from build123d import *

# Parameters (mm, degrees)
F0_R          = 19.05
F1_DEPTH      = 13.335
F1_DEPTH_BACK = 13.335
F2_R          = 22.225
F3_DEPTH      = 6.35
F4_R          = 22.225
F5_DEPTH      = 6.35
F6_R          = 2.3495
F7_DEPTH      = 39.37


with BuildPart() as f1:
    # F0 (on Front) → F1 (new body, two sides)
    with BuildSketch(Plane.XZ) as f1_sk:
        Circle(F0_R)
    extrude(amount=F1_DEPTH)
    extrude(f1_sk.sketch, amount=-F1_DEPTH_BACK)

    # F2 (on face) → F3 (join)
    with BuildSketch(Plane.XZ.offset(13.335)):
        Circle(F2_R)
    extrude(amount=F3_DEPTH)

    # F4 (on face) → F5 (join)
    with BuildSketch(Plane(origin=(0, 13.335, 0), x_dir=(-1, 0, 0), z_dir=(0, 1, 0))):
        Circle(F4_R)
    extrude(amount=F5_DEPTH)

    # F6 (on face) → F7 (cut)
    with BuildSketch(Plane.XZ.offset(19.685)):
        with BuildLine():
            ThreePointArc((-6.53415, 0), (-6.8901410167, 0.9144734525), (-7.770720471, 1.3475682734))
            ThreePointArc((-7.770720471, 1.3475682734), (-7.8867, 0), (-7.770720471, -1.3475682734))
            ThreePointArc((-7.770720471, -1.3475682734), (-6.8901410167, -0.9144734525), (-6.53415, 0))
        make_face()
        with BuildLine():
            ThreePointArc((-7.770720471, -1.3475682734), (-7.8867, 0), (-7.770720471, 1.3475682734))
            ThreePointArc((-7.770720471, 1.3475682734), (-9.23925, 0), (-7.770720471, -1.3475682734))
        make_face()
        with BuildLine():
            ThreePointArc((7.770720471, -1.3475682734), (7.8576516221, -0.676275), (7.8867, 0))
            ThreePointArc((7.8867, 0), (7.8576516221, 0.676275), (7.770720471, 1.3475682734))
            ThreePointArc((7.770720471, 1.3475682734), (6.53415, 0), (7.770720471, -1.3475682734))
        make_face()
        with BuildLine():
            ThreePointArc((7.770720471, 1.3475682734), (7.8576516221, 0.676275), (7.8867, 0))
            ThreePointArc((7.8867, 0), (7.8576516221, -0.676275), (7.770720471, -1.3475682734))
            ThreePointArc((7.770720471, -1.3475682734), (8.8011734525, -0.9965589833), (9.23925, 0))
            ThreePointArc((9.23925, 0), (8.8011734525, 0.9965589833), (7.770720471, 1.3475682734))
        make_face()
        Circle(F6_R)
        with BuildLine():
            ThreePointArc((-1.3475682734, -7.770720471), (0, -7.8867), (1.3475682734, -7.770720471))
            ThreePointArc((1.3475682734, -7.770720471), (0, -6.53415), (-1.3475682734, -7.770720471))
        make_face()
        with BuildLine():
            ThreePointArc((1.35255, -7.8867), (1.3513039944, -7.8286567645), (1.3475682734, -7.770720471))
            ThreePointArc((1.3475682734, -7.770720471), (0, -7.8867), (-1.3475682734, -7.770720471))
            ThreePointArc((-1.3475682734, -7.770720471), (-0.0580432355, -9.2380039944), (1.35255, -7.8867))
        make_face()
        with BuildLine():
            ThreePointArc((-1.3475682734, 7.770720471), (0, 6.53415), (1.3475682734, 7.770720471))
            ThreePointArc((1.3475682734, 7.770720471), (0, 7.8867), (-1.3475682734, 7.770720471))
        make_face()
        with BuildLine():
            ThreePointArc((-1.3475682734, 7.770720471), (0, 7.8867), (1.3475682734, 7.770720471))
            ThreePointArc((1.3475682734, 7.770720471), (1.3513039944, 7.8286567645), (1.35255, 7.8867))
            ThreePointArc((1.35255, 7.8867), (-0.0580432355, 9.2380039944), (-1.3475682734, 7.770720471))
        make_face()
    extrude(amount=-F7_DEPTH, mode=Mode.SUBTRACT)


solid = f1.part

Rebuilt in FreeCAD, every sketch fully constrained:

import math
import FreeCAD as App
import Part
import Sketcher
from FreeCAD import Vector
Q = App.Units.Quantity

doc = App.newDocument("Part")
body = doc.addObject("PartDesign::Body", "Body")

sketch1 = body.newObject("Sketcher::SketchObject", "Sketch")
sketch1.AttachmentSupport = (doc.getObject("XZ_Plane"), [""])
sketch1.MapMode = "FlatFace"
sketch1.addGeometry(Part.Circle(Vector(0, 0, 0), Vector(0, 0, 1), 19), False)
sketch1.addConstraint(Sketcher.Constraint("Coincident", 0, 3, -1, 1))
sketch1.addConstraint(Sketcher.Constraint("Diameter", 0, Q("1.5 in")))
pad1 = body.newObject("PartDesign::Pad", "Pad")
pad1.Profile = sketch1
pad1.Type = "TwoLengths"
pad1.Length = Q("0.525 in")
pad1.Length2 = Q("0.525 in")

sketch2 = body.newObject("Sketcher::SketchObject", "Sketch001")
sketch2.AttachmentSupport = (doc.getObject("XZ_Plane"), [""])
sketch2.MapMode = "FlatFace"
sketch2.AttachmentOffset = App.Placement(Vector(0, 0, 0.525 * 25.4), App.Rotation())
sketch2.addGeometry(Part.Circle(Vector(0, 0, 0), Vector(0, 0, 1), 22), False)
sketch2.addConstraint(Sketcher.Constraint("Coincident", 0, 3, -1, 1))
sketch2.addConstraint(Sketcher.Constraint("Diameter", 0, Q("1.75 in")))
pad2 = body.newObject("PartDesign::Pad", "Pad001")
pad2.Profile = sketch2
pad2.Length = Q("0.25 in")

sketch3 = body.newObject("Sketcher::SketchObject", "Sketch002")
sketch3.AttachmentSupport = (doc.getObject("XZ_Plane"), [""])
sketch3.MapMode = "FlatFace"
sketch3.AttachmentOffset = App.Placement(Vector(0, 0, -0.525 * 25.4), App.Rotation())
sketch3.addGeometry(Part.Circle(Vector(0, 0, 0), Vector(0, 0, 1), 22), False)
sketch3.addConstraint(Sketcher.Constraint("Coincident", 0, 3, -1, 1))
sketch3.addConstraint(Sketcher.Constraint("Diameter", 0, Q("1.75 in")))
pad3 = body.newObject("PartDesign::Pad", "Pad002")
pad3.Profile = sketch3
pad3.Length = Q("0.25 in")
pad3.Reversed = True

sketch4 = body.newObject("Sketcher::SketchObject", "Sketch003")
sketch4.AttachmentSupport = (doc.getObject("XZ_Plane"), [""])
sketch4.MapMode = "FlatFace"
sketch4.AttachmentOffset = App.Placement(Vector(0, 0, 0.775 * 25.4), App.Rotation())
sketch4.addGeometry(Part.ArcOfCircle(Part.Circle(Vector(-7.89, 0, 0), Vector(0, 0, 1), 1.35), math.radians(0), math.radians(85)), False)
sketch4.addGeometry(Part.ArcOfCircle(Part.Circle(Vector(-7.89, 0, 0), Vector(0, 0, 1), 1.35), math.radians(85), math.radians(275)), False)
sketch4.addGeometry(Part.ArcOfCircle(Part.Circle(Vector(-7.89, 0, 0), Vector(0, 0, 1), 1.35), math.radians(-85), math.radians(0)), False)
sketch4.addGeometry(Part.ArcOfCircle(Part.Circle(Vector(7.89, 0, 0), Vector(0, 0, 1), 1.35), math.radians(95), math.radians(265)), False)
sketch4.addGeometry(Part.ArcOfCircle(Part.Circle(Vector(7.89, 0, 0), Vector(0, 0, 1), 1.35), math.radians(-95), math.radians(0)), False)
sketch4.addGeometry(Part.ArcOfCircle(Part.Circle(Vector(7.89, 0, 0), Vector(0, 0, 1), 1.35), math.radians(0), math.radians(95)), False)
sketch4.addGeometry(Part.Circle(Vector(0, 0, 0), Vector(0, 0, 1), 2.35), False)
sketch4.addGeometry(Part.ArcOfCircle(Part.Circle(Vector(0, -7.89, 0), Vector(0, 0, 1), 1.35), math.radians(5), math.radians(175)), False)
sketch4.addGeometry(Part.ArcOfCircle(Part.Circle(Vector(0, -7.89, 0), Vector(0, 0, 1), 1.35), math.radians(175), math.radians(360)), False)
sketch4.addGeometry(Part.ArcOfCircle(Part.Circle(Vector(0, -7.89, 0), Vector(0, 0, 1), 1.35), math.radians(0), math.radians(4.92)), False)
sketch4.addGeometry(Part.ArcOfCircle(Part.Circle(Vector(0, 7.89, 0), Vector(0, 0, 1), 1.35), math.radians(-175), math.radians(-5)), False)
sketch4.addGeometry(Part.ArcOfCircle(Part.Circle(Vector(0, 7.89, 0), Vector(0, 0, 1), 1.35), math.radians(-4.92), math.radians(0)), False)
sketch4.addGeometry(Part.ArcOfCircle(Part.Circle(Vector(0, 7.89, 0), Vector(0, 0, 1), 1.35), math.radians(0), math.radians(185)), False)
sketch4.addConstraint(Sketcher.Constraint("Tangent", 0, 2, 1, 1))
sketch4.addConstraint(Sketcher.Constraint("Tangent", 1, 2, 2, 1))
sketch4.addConstraint(Sketcher.Constraint("Tangent", 2, 2, 0, 1))
sketch4.addConstraint(Sketcher.Constraint("Tangent", 3, 2, 4, 1))
sketch4.addConstraint(Sketcher.Constraint("Tangent", 4, 2, 5, 1))
sketch4.addConstraint(Sketcher.Constraint("Tangent", 5, 2, 3, 1))
sketch4.addConstraint(Sketcher.Constraint("Tangent", 7, 2, 8, 1))
sketch4.addConstraint(Sketcher.Constraint("Tangent", 8, 2, 9, 1))
sketch4.addConstraint(Sketcher.Constraint("Tangent", 9, 2, 7, 1))
sketch4.addConstraint(Sketcher.Constraint("Tangent", 10, 2, 11, 1))
sketch4.addConstraint(Sketcher.Constraint("Tangent", 11, 2, 12, 1))
sketch4.addConstraint(Sketcher.Constraint("Tangent", 12, 2, 10, 1))
sketch4.addConstraint(Sketcher.Constraint("Coincident", 6, 3, -1, 1))
sketch4.addConstraint(Sketcher.Constraint("Equal", 2, 3))
sketch4.addConstraint(Sketcher.Constraint("Equal", 5, 7))
sketch4.addConstraint(Sketcher.Constraint("Equal", 9, 10))
sketch4.addConstraint(Sketcher.Constraint("Symmetric", 0, 3, 3, 3, -1, 1))
sketch4.addConstraint(Sketcher.Constraint("Symmetric", 7, 3, 10, 3, -1, 1))
sketch4.addConstraint(Sketcher.Constraint("Symmetric", 1, 2, 3, 2, -2))
sketch4.addConstraint(Sketcher.Constraint("Symmetric", 7, 2, 9, 2, -2))
sketch4.addConstraint(Sketcher.Constraint("PointOnObject", 2, 2, -1))
sketch4.addConstraint(Sketcher.Constraint("PointOnObject", 4, 2, -1))
sketch4.addConstraint(Sketcher.Constraint("Horizontal", 0, 2, 5, 2))
sketch4.addConstraint(Sketcher.Constraint("Horizontal", 9, 3, 8, 2))
sketch4.addConstraint(Sketcher.Constraint("Horizontal", 12, 3, 11, 2))
sketch4.addConstraint(Sketcher.Constraint("Horizontal", 10, 2, 12, 2))
sketch4.addConstraint(Sketcher.Constraint("Vertical", 0, 2, 1, 2))
sketch4.addConstraint(Sketcher.Constraint("Vertical", 9, 2, 10, 2))
sketch4.addConstraint(Sketcher.Constraint("Diameter", 6, Q("0.185 in")))
sketch4.addConstraint(Sketcher.Constraint("Radius", 0, 1.35255))
sketch4.addConstraint(Sketcher.Constraint("DistanceX", 0, 3, 3, 3, Q("0.621 in")))
sketch4.addConstraint(Sketcher.Constraint("DistanceY", 7, 3, -1, 1, Q("0.3105 in")))
sketch4.addConstraint(Sketcher.Constraint("DistanceX", 0, 2, -1, 1, 7.77072))
sketch4.addConstraint(Sketcher.Constraint("DistanceX", 7, 2, -1, 1, 1.347568))
pocket1 = body.newObject("PartDesign::Pocket", "Pocket")
pocket1.Profile = sketch4
pocket1.Length = Q("1.55 in")

doc.recompute()
